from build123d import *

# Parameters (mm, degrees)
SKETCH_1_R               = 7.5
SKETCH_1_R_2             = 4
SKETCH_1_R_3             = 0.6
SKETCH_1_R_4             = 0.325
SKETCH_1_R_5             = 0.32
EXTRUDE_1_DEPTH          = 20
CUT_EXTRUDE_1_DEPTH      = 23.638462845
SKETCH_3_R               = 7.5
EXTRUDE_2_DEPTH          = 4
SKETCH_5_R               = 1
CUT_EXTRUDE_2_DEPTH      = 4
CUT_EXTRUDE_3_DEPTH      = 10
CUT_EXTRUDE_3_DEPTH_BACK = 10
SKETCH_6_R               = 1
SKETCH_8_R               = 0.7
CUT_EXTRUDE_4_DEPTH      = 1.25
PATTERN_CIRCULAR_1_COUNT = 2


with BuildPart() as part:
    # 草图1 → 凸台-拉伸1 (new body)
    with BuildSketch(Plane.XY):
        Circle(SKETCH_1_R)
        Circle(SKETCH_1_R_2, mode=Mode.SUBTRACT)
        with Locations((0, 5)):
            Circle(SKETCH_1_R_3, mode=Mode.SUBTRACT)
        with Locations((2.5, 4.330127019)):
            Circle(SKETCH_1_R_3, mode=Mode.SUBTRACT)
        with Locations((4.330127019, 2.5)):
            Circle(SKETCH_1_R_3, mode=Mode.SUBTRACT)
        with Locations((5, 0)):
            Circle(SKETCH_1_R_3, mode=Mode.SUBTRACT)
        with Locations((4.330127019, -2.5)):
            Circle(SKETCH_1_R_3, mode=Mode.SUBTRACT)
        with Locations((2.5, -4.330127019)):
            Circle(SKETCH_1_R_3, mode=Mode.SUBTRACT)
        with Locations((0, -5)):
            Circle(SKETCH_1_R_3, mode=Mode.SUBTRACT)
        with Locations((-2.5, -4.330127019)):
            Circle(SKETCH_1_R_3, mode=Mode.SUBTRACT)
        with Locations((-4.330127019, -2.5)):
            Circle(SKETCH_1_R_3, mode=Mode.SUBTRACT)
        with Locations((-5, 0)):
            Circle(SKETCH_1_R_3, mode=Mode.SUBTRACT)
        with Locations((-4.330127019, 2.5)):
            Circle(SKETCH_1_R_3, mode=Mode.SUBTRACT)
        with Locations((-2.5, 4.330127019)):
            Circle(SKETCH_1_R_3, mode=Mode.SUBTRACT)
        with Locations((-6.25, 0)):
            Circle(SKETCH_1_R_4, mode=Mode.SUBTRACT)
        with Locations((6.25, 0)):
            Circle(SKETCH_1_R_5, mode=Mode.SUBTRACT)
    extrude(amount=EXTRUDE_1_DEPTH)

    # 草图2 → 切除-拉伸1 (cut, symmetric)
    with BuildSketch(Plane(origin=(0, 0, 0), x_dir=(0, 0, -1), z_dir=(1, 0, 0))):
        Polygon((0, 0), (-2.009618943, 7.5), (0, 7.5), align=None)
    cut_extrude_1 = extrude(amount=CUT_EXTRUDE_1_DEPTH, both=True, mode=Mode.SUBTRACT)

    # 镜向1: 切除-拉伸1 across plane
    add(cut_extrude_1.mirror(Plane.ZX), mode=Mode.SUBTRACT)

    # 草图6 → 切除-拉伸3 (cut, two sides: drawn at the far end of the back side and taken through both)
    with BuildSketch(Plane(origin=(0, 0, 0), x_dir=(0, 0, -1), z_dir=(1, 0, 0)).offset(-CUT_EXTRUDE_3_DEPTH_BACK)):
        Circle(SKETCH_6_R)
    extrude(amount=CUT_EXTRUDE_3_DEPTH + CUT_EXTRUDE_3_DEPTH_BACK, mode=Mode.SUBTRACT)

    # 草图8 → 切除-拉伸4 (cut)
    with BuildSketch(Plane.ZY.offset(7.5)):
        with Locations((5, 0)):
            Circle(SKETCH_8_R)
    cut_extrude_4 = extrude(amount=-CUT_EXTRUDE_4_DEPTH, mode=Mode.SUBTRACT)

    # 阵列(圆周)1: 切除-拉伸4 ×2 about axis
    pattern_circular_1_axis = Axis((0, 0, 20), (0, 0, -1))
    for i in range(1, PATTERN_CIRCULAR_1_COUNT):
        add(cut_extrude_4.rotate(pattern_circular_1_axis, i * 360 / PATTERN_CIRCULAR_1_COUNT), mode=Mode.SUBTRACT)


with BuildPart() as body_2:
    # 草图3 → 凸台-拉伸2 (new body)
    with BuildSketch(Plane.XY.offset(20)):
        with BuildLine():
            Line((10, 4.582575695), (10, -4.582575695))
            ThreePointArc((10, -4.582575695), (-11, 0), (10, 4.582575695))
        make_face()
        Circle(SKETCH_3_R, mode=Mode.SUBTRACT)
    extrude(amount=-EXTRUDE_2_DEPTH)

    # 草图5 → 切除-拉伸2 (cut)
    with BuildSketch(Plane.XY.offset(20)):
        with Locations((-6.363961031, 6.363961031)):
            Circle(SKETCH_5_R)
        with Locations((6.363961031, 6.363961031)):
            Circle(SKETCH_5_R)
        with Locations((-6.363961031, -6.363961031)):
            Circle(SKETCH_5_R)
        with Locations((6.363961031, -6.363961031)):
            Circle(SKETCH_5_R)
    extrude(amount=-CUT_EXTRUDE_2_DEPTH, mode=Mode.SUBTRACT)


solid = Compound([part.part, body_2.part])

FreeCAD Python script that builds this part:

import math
import FreeCAD as App
import Part
import Sketcher
from FreeCAD import Vector
Q = App.Units.Quantity

doc = App.newDocument("Part")
body = doc.addObject("PartDesign::Body", "Body")

sketch1 = body.newObject("Sketcher::SketchObject", "Sketch")
sketch1.AttachmentSupport = (doc.getObject("XY_Plane"), [""])
sketch1.MapMode = "FlatFace"
sketch1.addGeometry([
    Part.Circle(Vector(0, 0, 0), Vector(0, 0, 1), 7.5),
    Part.Circle(Vector(-2.5, -4.33, 0), Vector(0, 0, 1), 0.6),
    Part.Circle(Vector(-4.33, -2.5, 0), Vector(0, 0, 1), 0.6),
    Part.Circle(Vector(0, -5, 0), Vector(0, 0, 1), 0.6),
    Part.Circle(Vector(2.5, -4.33, 0), Vector(0, 0, 1), 0.6),
    Part.Circle(Vector(4.33, -2.5, 0), Vector(0, 0, 1), 0.6),
    Part.Circle(Vector(-6.25, 0, 0), Vector(0, 0, 1), 0.33),
    Part.Circle(Vector(-5, 0, 0), Vector(0, 0, 1), 0.6),
    Part.Circle(Vector(-4.33, 2.5, 0), Vector(0, 0, 1), 0.6),
    Part.Circle(Vector(-2.5, 4.33, 0), Vector(0, 0, 1), 0.6),
    Part.Circle(Vector(0, 0, 0), Vector(0, 0, 1), 4),
    Part.Circle(Vector(5, 0, 0), Vector(0, 0, 1), 0.6),
    Part.Circle(Vector(6.25, 0, 0), Vector(0, 0, 1), 0.32),
    Part.Circle(Vector(4.33, 2.5, 0), Vector(0, 0, 1), 0.6),
    Part.Circle(Vector(0, 5, 0), Vector(0, 0, 1), 0.6),
    Part.Circle(Vector(2.5, 4.33, 0), Vector(0, 0, 1), 0.6),
], False)
sketch1.addConstraint([
    Sketcher.Constraint("Coincident", 0, 3, -1, 1),
    Sketcher.Constraint("Coincident", 10, 3, -1, 1),
    Sketcher.Constraint("Equal", 1, 2),
    Sketcher.Constraint("Equal", 2, 3),
    Sketcher.Constraint("Equal", 3, 4),
    Sketcher.Constraint("Equal", 4, 5),
    Sketcher.Constraint("Equal", 5, 7),
    Sketcher.Constraint("Equal", 7, 8),
    Sketcher.Constraint("Equal", 8, 9),
    Sketcher.Constraint("Equal", 9, 11),
    Sketcher.Constraint("Equal", 11, 13),
    Sketcher.Constraint("Equal", 13, 14),
    Sketcher.Constraint("Equal", 14, 15),
    Sketcher.Constraint("Symmetric", 5, 3, 8, 3, -1, 1),
    Sketcher.Constraint("Symmetric", 4, 3, 9, 3, -1, 1),
    Sketcher.Constraint("Symmetric", 7, 3, 11, 3, -1, 1),
    Sketcher.Constraint("Symmetric", 6, 3, 12, 3, -1, 1),
    Sketcher.Constraint("Symmetric", 2, 3, 13, 3, -1, 1),
    Sketcher.Constraint("Symmetric", 3, 3, 14, 3, -1, 1),
    Sketcher.Constraint("Symmetric", 1, 3, 15, 3, -1, 1),
    Sketcher.Constraint("Symmetric", 1, 3, 4, 3, -2),
    Sketcher.Constraint("Symmetric", 2, 3, 5, 3, -2),
    Sketcher.Constraint("PointOnObject", 3, 3, -2),
    Sketcher.Constraint("PointOnObject", 6, 3, -1),
    Sketcher.Constraint("PointOnObject", 7, 3, -1),
    Sketcher.Constraint("Diameter", 0, Q("15 mm")),
    Sketcher.Constraint("Diameter", 10, Q("8 mm")),
    Sketcher.Constraint("Diameter", 1, Q("1.2 mm")),
    Sketcher.Constraint("Diameter", 6, Q("0.65 mm")),
    Sketcher.Constraint("Diameter", 12, Q("0.64 mm")),
    Sketcher.Constraint("DistanceY", 3, 3, -1, 1, Q("5 mm")),
    Sketcher.Constraint("DistanceX", 7, 3, -1, 1, Q("5 mm")),
    Sketcher.Constraint("DistanceX", 1, 3, 4, 3, Q("5 mm")),
    Sketcher.Constraint("DistanceY", 2, 3, 8, 3, Q("5 mm")),
    Sketcher.Constraint("DistanceX", 6, 3, -1, 1, Q("6.25 mm")),
    Sketcher.Constraint("DistanceY", 1, 3, -1, 1, Q("4.330127 mm")),
    Sketcher.Constraint("DistanceX", 2, 3, -1, 1, Q("4.330127 mm")),
])
pad1 = body.newObject("PartDesign::Pad", "Pad")
pad1.Profile = sketch1
pad1.Length = 20

sketch2 = body.newObject("Sketcher::SketchObject", "Sketch001")
sketch2.AttachmentSupport = (doc.getObject("YZ_Plane"), [""])
sketch2.MapMode = "FlatFace"
sketch2.addGeometry([
    Part.LineSegment(Vector(7.5, 2, 0), Vector(0, 0, 0)),
    Part.LineSegment(Vector(0, 0, 0), Vector(7.5, 0, 0)),
    Part.LineSegment(Vector(7.5, 0, 0), Vector(7.5, 2, 0)),
], False)
sketch2.addConstraint([
    Sketcher.Constraint("Coincident", 0, 2, 1, 1),
    Sketcher.Constraint("Coincident", 1, 2, 2, 1),
    Sketcher.Constraint("Coincident", 2, 2, 0, 1),
    Sketcher.Constraint("Horizontal", 1),
    Sketcher.Constraint("Vertical", 2),
    Sketcher.Constraint("Coincident", 0, 2, -1, 1),
    Sketcher.Constraint("Angle", 0, Q("-165 deg")),
    Sketcher.Constraint("DistanceX", 1, 1, 1, 2, Q("7.5 mm")),
])
pocket1 = body.newObject("PartDesign::Pocket", "Pocket")
pocket1.Profile = sketch2
pocket1.Length = 47.276926
pocket1.Midplane = True
doc.recompute()

mirrored = body.newObject("PartDesign::Mirrored", "Mirrored")
mirrored.Originals = [pocket1]
mirrored.MirrorPlane = (doc.getObject("XZ_Plane"), [""])
body.Tip = mirrored

sketch3 = body.newObject("Sketcher::SketchObject", "Sketch002")
sketch3.AttachmentSupport = (doc.getObject("YZ_Plane"), [""])
sketch3.MapMode = "FlatFace"
sketch3.addGeometry(Part.Circle(Vector(0, 0, 0), Vector(0, 0, 1), 1), False)
sketch3.addConstraint([
    Sketcher.Constraint("Coincident", 0, 3, -1, 1),
    Sketcher.Constraint("Diameter", 0, Q("2 mm")),
])
pocket2 = body.newObject("PartDesign::Pocket", "Pocket001")
pocket2.Profile = sketch3
pocket2.Type = "ThroughAll"
pocket2.Midplane = True

sketch4 = body.newObject("Sketcher::SketchObject", "Sketch003")
sketch4.AttachmentSupport = (doc.getObject("YZ_Plane"), [""])
sketch4.MapMode = "FlatFace"
sketch4.AttachmentOffset = App.Placement(Vector(0, 0, -7.5), App.Rotation())
sketch4.addGeometry(Part.Circle(Vector(0, 5, 0), Vector(0, 0, 1), 0.7), False)
sketch4.addConstraint([
    Sketcher.Constraint("PointOnObject", 0, 3, -2),
    Sketcher.Constraint("Diameter", 0, Q("1.4 mm")),
    Sketcher.Constraint("DistanceY", -1, 1, 0, 3, Q("5 mm")),
])
pocket3 = body.newObject("PartDesign::Pocket", "Pocket002")
pocket3.Profile = sketch4
pocket3.Length = 1.25
pocket3.Reversed = True
doc.recompute()

polarpattern = body.newObject("PartDesign::PolarPattern", "PolarPattern")
polarpattern.Originals = [pocket3]
polarpattern.Axis = (doc.getObject("Z_Axis"), [""])
polarpattern.Angle = 360
polarpattern.Occurrences = 2
body.Tip = polarpattern
body2 = doc.addObject("PartDesign::Body", "Body001")

sketch5 = body2.newObject("Sketcher::SketchObject", "Sketch004")
sketch5.AttachmentSupport = (doc.getObject("XY_Plane001"), [""])
sketch5.MapMode = "FlatFace"
sketch5.AttachmentOffset = App.Placement(Vector(0, 0, 20), App.Rotation())
sketch5.addGeometry([
    Part.LineSegment(Vector(10, -5, 0), Vector(10, 5, 0)),
    Part.ArcOfCircle(Part.Circle(Vector(0, 0, 0), Vector(0, 0, 1), 11), math.radians(25), math.radians(335)),
    Part.Circle(Vector(0, 0, 0), Vector(0, 0, 1), 8),
], False)
sketch5.addConstraint([
    Sketcher.Constraint("Coincident", 0, 1, 1, 2),
    Sketcher.Constraint("Coincident", 1, 1, 0, 2),
    Sketcher.Constraint("Vertical", 0),
    Sketcher.Constraint("Coincident", 1, 3, -1, 1),
    Sketcher.Constraint("Coincident", 2, 3, -1, 1),
    Sketcher.Constraint("Diameter", 2, Q("15 mm")),
    Sketcher.Constraint("Radius", 1, Q("11 mm")),
    Sketcher.Constraint("DistanceX", -1, 1, 0, 1, Q("10 mm")),
])
pad2 = body2.newObject("PartDesign::Pad", "Pad001")
pad2.Profile = sketch5
pad2.Length = 4
pad2.Reversed = True

sketch6 = body2.newObject("Sketcher::SketchObject", "Sketch005")
sketch6.AttachmentSupport = (doc.getObject("XY_Plane001"), [""])
sketch6.MapMode = "FlatFace"
sketch6.AttachmentOffset = App.Placement(Vector(0, 0, 20), App.Rotation())
sketch6.addGeometry([
    Part.Circle(Vector(-6.4, 6.4, 0), Vector(0, 0, 1), 1),
    Part.Circle(Vector(6.4, 6.4, 0), Vector(0, 0, 1), 1),
    Part.Circle(Vector(-6.4, -6.4, 0), Vector(0, 0, 1), 1),
    Part.Circle(Vector(6.4, -6.4, 0), Vector(0, 0, 1), 1),
], False)
sketch6.addConstraint([
    Sketcher.Constraint("Equal", 0, 1),
    Sketcher.Constraint("Equal", 1, 2),
    Sketcher.Constraint("Equal", 2, 3),
    Sketcher.Constraint("Symmetric", 1, 3, 2, 3, -1, 1),
    Sketcher.Constraint("Symmetric", 0, 3, 3, 3, -1, 1),
    Sketcher.Constraint("Symmetric", 0, 3, 1, 3, -2),
    Sketcher.Constraint("Diameter", 0, Q("2 mm")),
    Sketcher.Constraint("DistanceX", 0, 3, -1, 1, Q("6.363961 mm")),
    Sketcher.Constraint("DistanceY", -1, 1, 0, 3, Q("6.363961 mm")),
])
pocket4 = body2.newObject("PartDesign::Pocket", "Pocket003")
pocket4.Profile = sketch6
pocket4.Length = 4

doc.recompute()
